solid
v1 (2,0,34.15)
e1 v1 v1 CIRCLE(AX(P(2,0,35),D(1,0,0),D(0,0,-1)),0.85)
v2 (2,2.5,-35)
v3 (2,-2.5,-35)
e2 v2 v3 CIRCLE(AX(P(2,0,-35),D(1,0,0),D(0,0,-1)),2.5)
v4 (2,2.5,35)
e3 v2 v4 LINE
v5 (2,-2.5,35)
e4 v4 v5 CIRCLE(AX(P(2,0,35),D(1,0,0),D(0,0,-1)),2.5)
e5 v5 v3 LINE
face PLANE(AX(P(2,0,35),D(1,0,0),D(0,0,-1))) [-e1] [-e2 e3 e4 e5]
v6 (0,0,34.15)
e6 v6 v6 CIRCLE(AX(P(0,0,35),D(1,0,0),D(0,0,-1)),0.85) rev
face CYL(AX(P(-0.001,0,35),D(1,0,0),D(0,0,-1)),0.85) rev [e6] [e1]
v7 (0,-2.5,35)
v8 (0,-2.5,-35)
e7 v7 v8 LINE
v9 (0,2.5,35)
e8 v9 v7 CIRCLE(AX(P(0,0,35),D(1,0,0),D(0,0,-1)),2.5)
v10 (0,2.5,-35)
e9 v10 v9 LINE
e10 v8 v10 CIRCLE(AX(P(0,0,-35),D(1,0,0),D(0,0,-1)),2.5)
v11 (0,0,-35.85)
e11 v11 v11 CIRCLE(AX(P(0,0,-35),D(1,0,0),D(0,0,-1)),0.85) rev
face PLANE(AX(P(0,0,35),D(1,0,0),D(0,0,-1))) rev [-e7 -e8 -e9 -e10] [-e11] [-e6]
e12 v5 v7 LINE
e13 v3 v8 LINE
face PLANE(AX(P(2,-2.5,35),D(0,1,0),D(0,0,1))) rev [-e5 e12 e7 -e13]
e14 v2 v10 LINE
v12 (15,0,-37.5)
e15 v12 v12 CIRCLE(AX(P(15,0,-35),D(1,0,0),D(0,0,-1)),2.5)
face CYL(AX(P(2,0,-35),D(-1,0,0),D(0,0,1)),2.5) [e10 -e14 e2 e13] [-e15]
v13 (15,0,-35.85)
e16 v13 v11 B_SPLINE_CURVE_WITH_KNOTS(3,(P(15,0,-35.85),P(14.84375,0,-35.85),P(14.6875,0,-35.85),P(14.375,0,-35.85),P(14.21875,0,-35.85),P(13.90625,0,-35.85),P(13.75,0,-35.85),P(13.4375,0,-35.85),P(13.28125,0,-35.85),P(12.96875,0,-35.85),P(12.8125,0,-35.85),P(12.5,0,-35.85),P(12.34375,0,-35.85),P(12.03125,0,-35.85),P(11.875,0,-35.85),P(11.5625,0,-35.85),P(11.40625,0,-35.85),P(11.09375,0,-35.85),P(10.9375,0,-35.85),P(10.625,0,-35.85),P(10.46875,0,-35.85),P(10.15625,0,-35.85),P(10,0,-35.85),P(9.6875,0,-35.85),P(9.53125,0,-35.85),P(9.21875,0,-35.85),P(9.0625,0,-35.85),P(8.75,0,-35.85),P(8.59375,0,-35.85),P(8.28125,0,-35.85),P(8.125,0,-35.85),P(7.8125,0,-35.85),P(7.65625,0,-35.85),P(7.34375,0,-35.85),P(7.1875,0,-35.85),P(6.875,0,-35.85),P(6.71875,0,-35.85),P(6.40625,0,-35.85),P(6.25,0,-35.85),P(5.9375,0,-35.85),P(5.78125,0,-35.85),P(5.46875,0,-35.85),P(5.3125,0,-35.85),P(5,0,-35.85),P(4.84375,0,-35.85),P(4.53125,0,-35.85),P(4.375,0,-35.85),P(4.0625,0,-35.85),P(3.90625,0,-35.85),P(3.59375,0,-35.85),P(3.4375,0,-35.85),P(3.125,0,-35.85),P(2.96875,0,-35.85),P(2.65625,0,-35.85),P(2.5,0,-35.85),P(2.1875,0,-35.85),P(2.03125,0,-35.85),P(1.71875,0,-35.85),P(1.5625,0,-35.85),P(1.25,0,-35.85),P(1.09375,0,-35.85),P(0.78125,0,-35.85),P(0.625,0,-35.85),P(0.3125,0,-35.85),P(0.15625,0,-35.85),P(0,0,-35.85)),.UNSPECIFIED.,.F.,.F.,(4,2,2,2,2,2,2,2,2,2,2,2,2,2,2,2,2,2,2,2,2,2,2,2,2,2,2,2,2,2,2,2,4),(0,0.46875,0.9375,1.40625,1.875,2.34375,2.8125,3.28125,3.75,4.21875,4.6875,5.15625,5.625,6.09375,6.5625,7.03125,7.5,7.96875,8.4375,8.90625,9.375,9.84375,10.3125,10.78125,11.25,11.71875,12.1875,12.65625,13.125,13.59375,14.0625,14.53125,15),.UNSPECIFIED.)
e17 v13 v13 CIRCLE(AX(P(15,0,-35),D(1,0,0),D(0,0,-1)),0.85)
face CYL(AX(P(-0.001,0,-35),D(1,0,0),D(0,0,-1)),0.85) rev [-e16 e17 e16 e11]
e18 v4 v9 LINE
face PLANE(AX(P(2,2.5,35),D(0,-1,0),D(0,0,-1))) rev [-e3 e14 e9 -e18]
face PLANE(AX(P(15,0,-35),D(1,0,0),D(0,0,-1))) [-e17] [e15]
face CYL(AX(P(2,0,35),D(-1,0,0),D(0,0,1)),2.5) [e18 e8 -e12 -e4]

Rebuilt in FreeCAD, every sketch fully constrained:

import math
import FreeCAD as App
import Part
import Sketcher
Q = App.Units.Quantity

doc = App.newDocument("Part")
body = doc.addObject("PartDesign::Body", "Body")

# Sketch on YZ plane
sketch1 = body.newObject("Sketcher::SketchObject", "Sketch")
sketch1.AttachmentSupport = (doc.getObject("YZ_Plane"), [""])
sketch1.MapMode = "FlatFace"
sketch1.addGeometry([
    Part.LineSegment(App.Vector(2.5, -35, 0), App.Vector(2.5, 35, 0)),
    Part.ArcOfCircle(Part.Circle(App.Vector(0, 35, 0), App.Vector(0, 0, 1), 2.5), math.radians(0), math.radians(180)),
    Part.LineSegment(App.Vector(-2.5, 35, 0), App.Vector(-2.5, -35, 0)),
    Part.ArcOfCircle(Part.Circle(App.Vector(0, -35, 0), App.Vector(0, 0, 1), 2.5), math.radians(180), math.radians(360)),
], False)
sketch1.addConstraint([
    Sketcher.Constraint("Tangent", 0, 2, 1, 1),
    Sketcher.Constraint("Tangent", 1, 2, 2, 1),
    Sketcher.Constraint("Tangent", 2, 2, 3, 1),
    Sketcher.Constraint("Tangent", 3, 2, 0, 1),
    Sketcher.Constraint("Vertical", 0),
    Sketcher.Constraint("Vertical", 2),
    Sketcher.Constraint("Symmetric", 1, 3, 3, 3, -1, 1),
    Sketcher.Constraint("Radius", 1, Q("2.5 mm")),
    Sketcher.Constraint("DistanceY", 0, 1, 0, 2, Q("70 mm")),
])
pad1 = body.newObject("PartDesign::Pad", "Pad")
pad1.Profile = sketch1
pad1.Length = 2

# Sketch on YZ plane
sketch2 = body.newObject("Sketcher::SketchObject", "Sketch001")
sketch2.AttachmentSupport = (doc.getObject("YZ_Plane"), [""])
sketch2.MapMode = "FlatFace"
sketch2.AttachmentOffset = App.Placement(App.Vector(0, 0, 2), App.Rotation())
sketch2.addGeometry(Part.Circle(App.Vector(0, -35, 0), App.Vector(0, 0, 1), 2.5), False)
sketch2.addConstraint([
    Sketcher.Constraint("PointOnObject", 0, 3, -2),
    Sketcher.Constraint("Diameter", 0, Q("5 mm")),
    Sketcher.Constraint("DistanceY", 0, 3, -1, 1, Q("35 mm")),
])
pad2 = body.newObject("PartDesign::Pad", "Pad001")
pad2.Profile = sketch2
pad2.Length = 13

# Sketch on YZ plane
sketch3 = body.newObject("Sketcher::SketchObject", "Sketch002")
sketch3.AttachmentSupport = (doc.getObject("YZ_Plane"), [""])
sketch3.MapMode = "FlatFace"
sketch3.AttachmentOffset = App.Placement(App.Vector(0, 0, 15), App.Rotation())
sketch3.addGeometry(Part.Circle(App.Vector(0, -35, 0), App.Vector(0, 0, 1), 0.8), False)
sketch3.addConstraint([
    Sketcher.Constraint("PointOnObject", 0, 3, -2),
    Sketcher.Constraint("Diameter", 0, Q("1.7 mm")),
    Sketcher.Constraint("DistanceY", 0, 3, -1, 1, Q("35 mm")),
])
pocket1 = body.newObject("PartDesign::Pocket", "Pocket")
pocket1.Profile = sketch3
pocket1.Type = "UpToFirst"

# Sketch on YZ plane
sketch4 = body.newObject("Sketcher::SketchObject", "Sketch003")
sketch4.AttachmentSupport = (doc.getObject("YZ_Plane"), [""])
sketch4.MapMode = "FlatFace"
sketch4.AttachmentOffset = App.Placement(App.Vector(0, 0, 2), App.Rotation())
sketch4.addGeometry(Part.Circle(App.Vector(0, 35, 0), App.Vector(0, 0, 1), 0.8), False)
sketch4.addConstraint([
    Sketcher.Constraint("PointOnObject", 0, 3, -2),
    Sketcher.Constraint("Diameter", 0, Q("1.7 mm")),
    Sketcher.Constraint("DistanceY", -1, 1, 0, 3, Q("35 mm")),
])
pocket2 = body.newObject("PartDesign::Pocket", "Pocket001")
pocket2.Profile = sketch4
pocket2.Type = "UpToFirst"

doc.recompute()
